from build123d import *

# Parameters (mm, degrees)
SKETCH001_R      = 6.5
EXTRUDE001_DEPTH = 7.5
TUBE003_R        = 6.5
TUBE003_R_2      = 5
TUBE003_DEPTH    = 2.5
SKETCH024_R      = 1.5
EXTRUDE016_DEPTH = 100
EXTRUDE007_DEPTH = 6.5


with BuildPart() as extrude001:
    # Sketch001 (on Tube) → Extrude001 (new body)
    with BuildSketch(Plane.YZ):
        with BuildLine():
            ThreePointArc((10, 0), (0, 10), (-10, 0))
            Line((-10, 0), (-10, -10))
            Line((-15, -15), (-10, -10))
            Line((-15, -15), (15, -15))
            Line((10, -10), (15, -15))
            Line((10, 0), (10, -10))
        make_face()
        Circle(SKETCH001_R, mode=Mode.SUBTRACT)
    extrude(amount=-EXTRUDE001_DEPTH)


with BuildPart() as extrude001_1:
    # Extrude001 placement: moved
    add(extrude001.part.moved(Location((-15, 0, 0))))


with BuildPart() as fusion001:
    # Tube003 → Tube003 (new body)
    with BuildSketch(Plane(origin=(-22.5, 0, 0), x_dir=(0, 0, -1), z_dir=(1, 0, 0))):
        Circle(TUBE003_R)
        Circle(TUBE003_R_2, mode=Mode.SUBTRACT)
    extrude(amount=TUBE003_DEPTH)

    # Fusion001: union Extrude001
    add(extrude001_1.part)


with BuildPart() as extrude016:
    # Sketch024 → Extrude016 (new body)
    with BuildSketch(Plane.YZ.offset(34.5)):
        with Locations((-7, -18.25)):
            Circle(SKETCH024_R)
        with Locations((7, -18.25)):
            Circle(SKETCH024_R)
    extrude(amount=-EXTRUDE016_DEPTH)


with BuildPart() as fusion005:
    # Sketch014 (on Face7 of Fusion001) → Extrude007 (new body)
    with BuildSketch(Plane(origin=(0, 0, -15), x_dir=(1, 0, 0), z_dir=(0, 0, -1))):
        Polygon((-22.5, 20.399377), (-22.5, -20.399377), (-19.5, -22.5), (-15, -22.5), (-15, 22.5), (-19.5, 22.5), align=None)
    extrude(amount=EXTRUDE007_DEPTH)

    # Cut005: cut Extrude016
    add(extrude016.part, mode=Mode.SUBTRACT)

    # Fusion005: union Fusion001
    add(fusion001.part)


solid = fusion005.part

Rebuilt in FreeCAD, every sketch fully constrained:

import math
import FreeCAD as App
import Part
import Sketcher
Q = App.Units.Quantity


def add_polygon(sketch, points):
    """Adds a closed chain of lines whose ends are joined by coincident constraints."""
    first, n = sketch.GeometryCount, len(points)
    for a, b in zip(points, points[1:] + points[:1]):
        sketch.addGeometry(Part.LineSegment(App.Vector(*a, 0), App.Vector(*b, 0)), False)
    for i in range(n):
        sketch.addConstraint(Sketcher.Constraint("Coincident", first + i, 2, first + (i + 1) % n, 1))

doc = App.newDocument("Part")
body = doc.addObject("PartDesign::Body", "Body")

sketch1 = body.newObject("Sketcher::SketchObject", "Sketch")
sketch1.AttachmentSupport = (doc.getObject("YZ_Plane"), [""])
sketch1.MapMode = "FlatFace"
sketch1.addGeometry([
    Part.ArcOfCircle(Part.Circle(App.Vector(0, 0, 0), App.Vector(0, 0, 1), 10), math.radians(0), math.radians(180)),
    Part.LineSegment(App.Vector(-10, 0, 0), App.Vector(-10, -10, 0)),
    Part.LineSegment(App.Vector(-10, -10, 0), App.Vector(-15, -15, 0)),
    Part.LineSegment(App.Vector(-15, -15, 0), App.Vector(15, -15, 0)),
    Part.LineSegment(App.Vector(15, -15, 0), App.Vector(10, -10, 0)),
    Part.LineSegment(App.Vector(10, -10, 0), App.Vector(10, 0, 0)),
    Part.Circle(App.Vector(0, 0, 0), App.Vector(0, 0, 1), 6.5),
], False)
sketch1.addConstraint([
    Sketcher.Constraint("Tangent", 0, 2, 1, 1),
    Sketcher.Constraint("Coincident", 1, 2, 2, 1),
    Sketcher.Constraint("Coincident", 2, 2, 3, 1),
    Sketcher.Constraint("Coincident", 3, 2, 4, 1),
    Sketcher.Constraint("Coincident", 4, 2, 5, 1),
    Sketcher.Constraint("Tangent", 5, 2, 0, 1),
    Sketcher.Constraint("Vertical", 1),
    Sketcher.Constraint("Horizontal", 3),
    Sketcher.Constraint("Vertical", 5),
    Sketcher.Constraint("Coincident", 0, 3, -1, 1),
    Sketcher.Constraint("Coincident", 6, 3, -1, 1),
    Sketcher.Constraint("Perpendicular", 2, 4),
    Sketcher.Constraint("Horizontal", 1, 2, 4, 2),
    Sketcher.Constraint("Equal", 2, 4),
    Sketcher.Constraint("Diameter", 6, 13.0),
    Sketcher.Constraint("Radius", 0, 10.0),
    Sketcher.Constraint("DistanceX", 3, 1, 3, 2, 30.0),
    Sketcher.Constraint("DistanceY", 1, 2, 1, 1, 10.0),
])
pad1 = body.newObject("PartDesign::Pad", "Pad")
pad1.Profile = sketch1
pad1.Length = 7.5
pad1.Reversed = True
body2 = doc.addObject("PartDesign::Body", "Body001")
doc.recompute()

body.Placement = App.Placement(App.Vector(-15, 0, 0), App.Rotation(App.Vector(0, 0, 1), 0))
boolean = body2.newObject("PartDesign::Boolean", "Boolean")
boolean.Type = "Fuse"
boolean.addObjects([body])
body3 = doc.addObject("PartDesign::Body", "Body002")

sketch2 = body3.newObject("Sketcher::SketchObject", "Sketch001")
sketch2.AttachmentSupport = (doc.getObject("YZ_Plane002"), [""])
sketch2.MapMode = "FlatFace"
sketch2.AttachmentOffset = App.Placement(App.Vector(0, 0, -22.5), App.Rotation())
sketch2.addGeometry([
    Part.Circle(App.Vector(0, 0, 0), App.Vector(0, 0, 1), 6.5),
    Part.Circle(App.Vector(0, 0, 0), App.Vector(0, 0, 1), 5),
], False)
sketch2.addConstraint([
    Sketcher.Constraint("Coincident", 0, 3, -1, 1),
    Sketcher.Constraint("Coincident", 1, 3, -1, 1),
    Sketcher.Constraint("Diameter", 0, 13.0),
    Sketcher.Constraint("Diameter", 1, 10.0),
])
pad2 = body3.newObject("PartDesign::Pad", "Pad001")
pad2.Profile = sketch2
pad2.Length = 2.5
doc.recompute()

boolean2 = body3.newObject("PartDesign::Boolean", "Boolean001")
boolean2.Type = "Fuse"
boolean2.addObjects([body2])
body4 = doc.addObject("PartDesign::Body", "Body003")
body4.AllowCompound = True

sketch3 = body4.newObject("Sketcher::SketchObject", "Sketch002")
sketch3.AttachmentSupport = (doc.getObject("YZ_Plane003"), [""])
sketch3.MapMode = "FlatFace"
sketch3.AttachmentOffset = App.Placement(App.Vector(0, 0, 34.5), App.Rotation())
sketch3.addGeometry([
    Part.Circle(App.Vector(-7, -18.25, 0), App.Vector(0, 0, 1), 1.5),
    Part.Circle(App.Vector(7, -18.25, 0), App.Vector(0, 0, 1), 1.5),
], False)
sketch3.addConstraint([
    Sketcher.Constraint("Equal", 0, 1),
    Sketcher.Constraint("Symmetric", 0, 3, 1, 3, -2),
    Sketcher.Constraint("Diameter", 0, 3.0),
    Sketcher.Constraint("DistanceX", 0, 3, -1, 1, 7.0),
    Sketcher.Constraint("DistanceY", 0, 3, -1, 1, 18.25),
])
pad3 = body4.newObject("PartDesign::Pad", "Pad002")
pad3.Profile = sketch3
pad3.Length = 100
pad3.Reversed = True
body5 = doc.addObject("PartDesign::Body", "Body004")

sketch4 = body5.newObject("Sketcher::SketchObject", "Sketch003")
sketch4.AttachmentSupport = (doc.getObject("XY_Plane004"), [""])
sketch4.MapMode = "FlatFace"
sketch4.AttachmentOffset = App.Placement(App.Vector(0, 0, -15), App.Rotation())
add_polygon(sketch4, [(-22.5, -20.399377), (-22.5, 20.399377), (-19.5, 22.5), (-15, 22.5), (-15, -22.5), (-19.5, -22.5)])
sketch4.addConstraint([
    Sketcher.Constraint("Vertical", 0),
    Sketcher.Constraint("Horizontal", 2),
    Sketcher.Constraint("Vertical", 3),
    Sketcher.Constraint("Horizontal", 4),
    Sketcher.Constraint("Symmetric", 1, 2, 4, 2, -1),
    Sketcher.Constraint("Equal", 1, 5),
    Sketcher.Constraint("DistanceY", 3, 2, 3, 1, 45.0),
    Sketcher.Constraint("Angle", 1, Q("35.000005 deg")),
    Sketcher.Constraint("DistanceX", 2, 1, 2, 2, 4.5),
    Sketcher.Constraint("DistanceX", 2, 2, -1, 1, 15.0),
    Sketcher.Constraint("DistanceX", 0, 2, 1, 2, 3.0),
])
pad4 = body5.newObject("PartDesign::Pad", "Pad003")
pad4.Profile = sketch4
pad4.Length = 6.5
pad4.Reversed = True
doc.recompute()

boolean3 = body5.newObject("PartDesign::Boolean", "Boolean002")
boolean3.Type = "Cut"
boolean3.addObjects([body4])
doc.recompute()

boolean4 = body5.newObject("PartDesign::Boolean", "Boolean003")
boolean4.Type = "Fuse"
boolean4.addObjects([body3])

doc.recompute()
